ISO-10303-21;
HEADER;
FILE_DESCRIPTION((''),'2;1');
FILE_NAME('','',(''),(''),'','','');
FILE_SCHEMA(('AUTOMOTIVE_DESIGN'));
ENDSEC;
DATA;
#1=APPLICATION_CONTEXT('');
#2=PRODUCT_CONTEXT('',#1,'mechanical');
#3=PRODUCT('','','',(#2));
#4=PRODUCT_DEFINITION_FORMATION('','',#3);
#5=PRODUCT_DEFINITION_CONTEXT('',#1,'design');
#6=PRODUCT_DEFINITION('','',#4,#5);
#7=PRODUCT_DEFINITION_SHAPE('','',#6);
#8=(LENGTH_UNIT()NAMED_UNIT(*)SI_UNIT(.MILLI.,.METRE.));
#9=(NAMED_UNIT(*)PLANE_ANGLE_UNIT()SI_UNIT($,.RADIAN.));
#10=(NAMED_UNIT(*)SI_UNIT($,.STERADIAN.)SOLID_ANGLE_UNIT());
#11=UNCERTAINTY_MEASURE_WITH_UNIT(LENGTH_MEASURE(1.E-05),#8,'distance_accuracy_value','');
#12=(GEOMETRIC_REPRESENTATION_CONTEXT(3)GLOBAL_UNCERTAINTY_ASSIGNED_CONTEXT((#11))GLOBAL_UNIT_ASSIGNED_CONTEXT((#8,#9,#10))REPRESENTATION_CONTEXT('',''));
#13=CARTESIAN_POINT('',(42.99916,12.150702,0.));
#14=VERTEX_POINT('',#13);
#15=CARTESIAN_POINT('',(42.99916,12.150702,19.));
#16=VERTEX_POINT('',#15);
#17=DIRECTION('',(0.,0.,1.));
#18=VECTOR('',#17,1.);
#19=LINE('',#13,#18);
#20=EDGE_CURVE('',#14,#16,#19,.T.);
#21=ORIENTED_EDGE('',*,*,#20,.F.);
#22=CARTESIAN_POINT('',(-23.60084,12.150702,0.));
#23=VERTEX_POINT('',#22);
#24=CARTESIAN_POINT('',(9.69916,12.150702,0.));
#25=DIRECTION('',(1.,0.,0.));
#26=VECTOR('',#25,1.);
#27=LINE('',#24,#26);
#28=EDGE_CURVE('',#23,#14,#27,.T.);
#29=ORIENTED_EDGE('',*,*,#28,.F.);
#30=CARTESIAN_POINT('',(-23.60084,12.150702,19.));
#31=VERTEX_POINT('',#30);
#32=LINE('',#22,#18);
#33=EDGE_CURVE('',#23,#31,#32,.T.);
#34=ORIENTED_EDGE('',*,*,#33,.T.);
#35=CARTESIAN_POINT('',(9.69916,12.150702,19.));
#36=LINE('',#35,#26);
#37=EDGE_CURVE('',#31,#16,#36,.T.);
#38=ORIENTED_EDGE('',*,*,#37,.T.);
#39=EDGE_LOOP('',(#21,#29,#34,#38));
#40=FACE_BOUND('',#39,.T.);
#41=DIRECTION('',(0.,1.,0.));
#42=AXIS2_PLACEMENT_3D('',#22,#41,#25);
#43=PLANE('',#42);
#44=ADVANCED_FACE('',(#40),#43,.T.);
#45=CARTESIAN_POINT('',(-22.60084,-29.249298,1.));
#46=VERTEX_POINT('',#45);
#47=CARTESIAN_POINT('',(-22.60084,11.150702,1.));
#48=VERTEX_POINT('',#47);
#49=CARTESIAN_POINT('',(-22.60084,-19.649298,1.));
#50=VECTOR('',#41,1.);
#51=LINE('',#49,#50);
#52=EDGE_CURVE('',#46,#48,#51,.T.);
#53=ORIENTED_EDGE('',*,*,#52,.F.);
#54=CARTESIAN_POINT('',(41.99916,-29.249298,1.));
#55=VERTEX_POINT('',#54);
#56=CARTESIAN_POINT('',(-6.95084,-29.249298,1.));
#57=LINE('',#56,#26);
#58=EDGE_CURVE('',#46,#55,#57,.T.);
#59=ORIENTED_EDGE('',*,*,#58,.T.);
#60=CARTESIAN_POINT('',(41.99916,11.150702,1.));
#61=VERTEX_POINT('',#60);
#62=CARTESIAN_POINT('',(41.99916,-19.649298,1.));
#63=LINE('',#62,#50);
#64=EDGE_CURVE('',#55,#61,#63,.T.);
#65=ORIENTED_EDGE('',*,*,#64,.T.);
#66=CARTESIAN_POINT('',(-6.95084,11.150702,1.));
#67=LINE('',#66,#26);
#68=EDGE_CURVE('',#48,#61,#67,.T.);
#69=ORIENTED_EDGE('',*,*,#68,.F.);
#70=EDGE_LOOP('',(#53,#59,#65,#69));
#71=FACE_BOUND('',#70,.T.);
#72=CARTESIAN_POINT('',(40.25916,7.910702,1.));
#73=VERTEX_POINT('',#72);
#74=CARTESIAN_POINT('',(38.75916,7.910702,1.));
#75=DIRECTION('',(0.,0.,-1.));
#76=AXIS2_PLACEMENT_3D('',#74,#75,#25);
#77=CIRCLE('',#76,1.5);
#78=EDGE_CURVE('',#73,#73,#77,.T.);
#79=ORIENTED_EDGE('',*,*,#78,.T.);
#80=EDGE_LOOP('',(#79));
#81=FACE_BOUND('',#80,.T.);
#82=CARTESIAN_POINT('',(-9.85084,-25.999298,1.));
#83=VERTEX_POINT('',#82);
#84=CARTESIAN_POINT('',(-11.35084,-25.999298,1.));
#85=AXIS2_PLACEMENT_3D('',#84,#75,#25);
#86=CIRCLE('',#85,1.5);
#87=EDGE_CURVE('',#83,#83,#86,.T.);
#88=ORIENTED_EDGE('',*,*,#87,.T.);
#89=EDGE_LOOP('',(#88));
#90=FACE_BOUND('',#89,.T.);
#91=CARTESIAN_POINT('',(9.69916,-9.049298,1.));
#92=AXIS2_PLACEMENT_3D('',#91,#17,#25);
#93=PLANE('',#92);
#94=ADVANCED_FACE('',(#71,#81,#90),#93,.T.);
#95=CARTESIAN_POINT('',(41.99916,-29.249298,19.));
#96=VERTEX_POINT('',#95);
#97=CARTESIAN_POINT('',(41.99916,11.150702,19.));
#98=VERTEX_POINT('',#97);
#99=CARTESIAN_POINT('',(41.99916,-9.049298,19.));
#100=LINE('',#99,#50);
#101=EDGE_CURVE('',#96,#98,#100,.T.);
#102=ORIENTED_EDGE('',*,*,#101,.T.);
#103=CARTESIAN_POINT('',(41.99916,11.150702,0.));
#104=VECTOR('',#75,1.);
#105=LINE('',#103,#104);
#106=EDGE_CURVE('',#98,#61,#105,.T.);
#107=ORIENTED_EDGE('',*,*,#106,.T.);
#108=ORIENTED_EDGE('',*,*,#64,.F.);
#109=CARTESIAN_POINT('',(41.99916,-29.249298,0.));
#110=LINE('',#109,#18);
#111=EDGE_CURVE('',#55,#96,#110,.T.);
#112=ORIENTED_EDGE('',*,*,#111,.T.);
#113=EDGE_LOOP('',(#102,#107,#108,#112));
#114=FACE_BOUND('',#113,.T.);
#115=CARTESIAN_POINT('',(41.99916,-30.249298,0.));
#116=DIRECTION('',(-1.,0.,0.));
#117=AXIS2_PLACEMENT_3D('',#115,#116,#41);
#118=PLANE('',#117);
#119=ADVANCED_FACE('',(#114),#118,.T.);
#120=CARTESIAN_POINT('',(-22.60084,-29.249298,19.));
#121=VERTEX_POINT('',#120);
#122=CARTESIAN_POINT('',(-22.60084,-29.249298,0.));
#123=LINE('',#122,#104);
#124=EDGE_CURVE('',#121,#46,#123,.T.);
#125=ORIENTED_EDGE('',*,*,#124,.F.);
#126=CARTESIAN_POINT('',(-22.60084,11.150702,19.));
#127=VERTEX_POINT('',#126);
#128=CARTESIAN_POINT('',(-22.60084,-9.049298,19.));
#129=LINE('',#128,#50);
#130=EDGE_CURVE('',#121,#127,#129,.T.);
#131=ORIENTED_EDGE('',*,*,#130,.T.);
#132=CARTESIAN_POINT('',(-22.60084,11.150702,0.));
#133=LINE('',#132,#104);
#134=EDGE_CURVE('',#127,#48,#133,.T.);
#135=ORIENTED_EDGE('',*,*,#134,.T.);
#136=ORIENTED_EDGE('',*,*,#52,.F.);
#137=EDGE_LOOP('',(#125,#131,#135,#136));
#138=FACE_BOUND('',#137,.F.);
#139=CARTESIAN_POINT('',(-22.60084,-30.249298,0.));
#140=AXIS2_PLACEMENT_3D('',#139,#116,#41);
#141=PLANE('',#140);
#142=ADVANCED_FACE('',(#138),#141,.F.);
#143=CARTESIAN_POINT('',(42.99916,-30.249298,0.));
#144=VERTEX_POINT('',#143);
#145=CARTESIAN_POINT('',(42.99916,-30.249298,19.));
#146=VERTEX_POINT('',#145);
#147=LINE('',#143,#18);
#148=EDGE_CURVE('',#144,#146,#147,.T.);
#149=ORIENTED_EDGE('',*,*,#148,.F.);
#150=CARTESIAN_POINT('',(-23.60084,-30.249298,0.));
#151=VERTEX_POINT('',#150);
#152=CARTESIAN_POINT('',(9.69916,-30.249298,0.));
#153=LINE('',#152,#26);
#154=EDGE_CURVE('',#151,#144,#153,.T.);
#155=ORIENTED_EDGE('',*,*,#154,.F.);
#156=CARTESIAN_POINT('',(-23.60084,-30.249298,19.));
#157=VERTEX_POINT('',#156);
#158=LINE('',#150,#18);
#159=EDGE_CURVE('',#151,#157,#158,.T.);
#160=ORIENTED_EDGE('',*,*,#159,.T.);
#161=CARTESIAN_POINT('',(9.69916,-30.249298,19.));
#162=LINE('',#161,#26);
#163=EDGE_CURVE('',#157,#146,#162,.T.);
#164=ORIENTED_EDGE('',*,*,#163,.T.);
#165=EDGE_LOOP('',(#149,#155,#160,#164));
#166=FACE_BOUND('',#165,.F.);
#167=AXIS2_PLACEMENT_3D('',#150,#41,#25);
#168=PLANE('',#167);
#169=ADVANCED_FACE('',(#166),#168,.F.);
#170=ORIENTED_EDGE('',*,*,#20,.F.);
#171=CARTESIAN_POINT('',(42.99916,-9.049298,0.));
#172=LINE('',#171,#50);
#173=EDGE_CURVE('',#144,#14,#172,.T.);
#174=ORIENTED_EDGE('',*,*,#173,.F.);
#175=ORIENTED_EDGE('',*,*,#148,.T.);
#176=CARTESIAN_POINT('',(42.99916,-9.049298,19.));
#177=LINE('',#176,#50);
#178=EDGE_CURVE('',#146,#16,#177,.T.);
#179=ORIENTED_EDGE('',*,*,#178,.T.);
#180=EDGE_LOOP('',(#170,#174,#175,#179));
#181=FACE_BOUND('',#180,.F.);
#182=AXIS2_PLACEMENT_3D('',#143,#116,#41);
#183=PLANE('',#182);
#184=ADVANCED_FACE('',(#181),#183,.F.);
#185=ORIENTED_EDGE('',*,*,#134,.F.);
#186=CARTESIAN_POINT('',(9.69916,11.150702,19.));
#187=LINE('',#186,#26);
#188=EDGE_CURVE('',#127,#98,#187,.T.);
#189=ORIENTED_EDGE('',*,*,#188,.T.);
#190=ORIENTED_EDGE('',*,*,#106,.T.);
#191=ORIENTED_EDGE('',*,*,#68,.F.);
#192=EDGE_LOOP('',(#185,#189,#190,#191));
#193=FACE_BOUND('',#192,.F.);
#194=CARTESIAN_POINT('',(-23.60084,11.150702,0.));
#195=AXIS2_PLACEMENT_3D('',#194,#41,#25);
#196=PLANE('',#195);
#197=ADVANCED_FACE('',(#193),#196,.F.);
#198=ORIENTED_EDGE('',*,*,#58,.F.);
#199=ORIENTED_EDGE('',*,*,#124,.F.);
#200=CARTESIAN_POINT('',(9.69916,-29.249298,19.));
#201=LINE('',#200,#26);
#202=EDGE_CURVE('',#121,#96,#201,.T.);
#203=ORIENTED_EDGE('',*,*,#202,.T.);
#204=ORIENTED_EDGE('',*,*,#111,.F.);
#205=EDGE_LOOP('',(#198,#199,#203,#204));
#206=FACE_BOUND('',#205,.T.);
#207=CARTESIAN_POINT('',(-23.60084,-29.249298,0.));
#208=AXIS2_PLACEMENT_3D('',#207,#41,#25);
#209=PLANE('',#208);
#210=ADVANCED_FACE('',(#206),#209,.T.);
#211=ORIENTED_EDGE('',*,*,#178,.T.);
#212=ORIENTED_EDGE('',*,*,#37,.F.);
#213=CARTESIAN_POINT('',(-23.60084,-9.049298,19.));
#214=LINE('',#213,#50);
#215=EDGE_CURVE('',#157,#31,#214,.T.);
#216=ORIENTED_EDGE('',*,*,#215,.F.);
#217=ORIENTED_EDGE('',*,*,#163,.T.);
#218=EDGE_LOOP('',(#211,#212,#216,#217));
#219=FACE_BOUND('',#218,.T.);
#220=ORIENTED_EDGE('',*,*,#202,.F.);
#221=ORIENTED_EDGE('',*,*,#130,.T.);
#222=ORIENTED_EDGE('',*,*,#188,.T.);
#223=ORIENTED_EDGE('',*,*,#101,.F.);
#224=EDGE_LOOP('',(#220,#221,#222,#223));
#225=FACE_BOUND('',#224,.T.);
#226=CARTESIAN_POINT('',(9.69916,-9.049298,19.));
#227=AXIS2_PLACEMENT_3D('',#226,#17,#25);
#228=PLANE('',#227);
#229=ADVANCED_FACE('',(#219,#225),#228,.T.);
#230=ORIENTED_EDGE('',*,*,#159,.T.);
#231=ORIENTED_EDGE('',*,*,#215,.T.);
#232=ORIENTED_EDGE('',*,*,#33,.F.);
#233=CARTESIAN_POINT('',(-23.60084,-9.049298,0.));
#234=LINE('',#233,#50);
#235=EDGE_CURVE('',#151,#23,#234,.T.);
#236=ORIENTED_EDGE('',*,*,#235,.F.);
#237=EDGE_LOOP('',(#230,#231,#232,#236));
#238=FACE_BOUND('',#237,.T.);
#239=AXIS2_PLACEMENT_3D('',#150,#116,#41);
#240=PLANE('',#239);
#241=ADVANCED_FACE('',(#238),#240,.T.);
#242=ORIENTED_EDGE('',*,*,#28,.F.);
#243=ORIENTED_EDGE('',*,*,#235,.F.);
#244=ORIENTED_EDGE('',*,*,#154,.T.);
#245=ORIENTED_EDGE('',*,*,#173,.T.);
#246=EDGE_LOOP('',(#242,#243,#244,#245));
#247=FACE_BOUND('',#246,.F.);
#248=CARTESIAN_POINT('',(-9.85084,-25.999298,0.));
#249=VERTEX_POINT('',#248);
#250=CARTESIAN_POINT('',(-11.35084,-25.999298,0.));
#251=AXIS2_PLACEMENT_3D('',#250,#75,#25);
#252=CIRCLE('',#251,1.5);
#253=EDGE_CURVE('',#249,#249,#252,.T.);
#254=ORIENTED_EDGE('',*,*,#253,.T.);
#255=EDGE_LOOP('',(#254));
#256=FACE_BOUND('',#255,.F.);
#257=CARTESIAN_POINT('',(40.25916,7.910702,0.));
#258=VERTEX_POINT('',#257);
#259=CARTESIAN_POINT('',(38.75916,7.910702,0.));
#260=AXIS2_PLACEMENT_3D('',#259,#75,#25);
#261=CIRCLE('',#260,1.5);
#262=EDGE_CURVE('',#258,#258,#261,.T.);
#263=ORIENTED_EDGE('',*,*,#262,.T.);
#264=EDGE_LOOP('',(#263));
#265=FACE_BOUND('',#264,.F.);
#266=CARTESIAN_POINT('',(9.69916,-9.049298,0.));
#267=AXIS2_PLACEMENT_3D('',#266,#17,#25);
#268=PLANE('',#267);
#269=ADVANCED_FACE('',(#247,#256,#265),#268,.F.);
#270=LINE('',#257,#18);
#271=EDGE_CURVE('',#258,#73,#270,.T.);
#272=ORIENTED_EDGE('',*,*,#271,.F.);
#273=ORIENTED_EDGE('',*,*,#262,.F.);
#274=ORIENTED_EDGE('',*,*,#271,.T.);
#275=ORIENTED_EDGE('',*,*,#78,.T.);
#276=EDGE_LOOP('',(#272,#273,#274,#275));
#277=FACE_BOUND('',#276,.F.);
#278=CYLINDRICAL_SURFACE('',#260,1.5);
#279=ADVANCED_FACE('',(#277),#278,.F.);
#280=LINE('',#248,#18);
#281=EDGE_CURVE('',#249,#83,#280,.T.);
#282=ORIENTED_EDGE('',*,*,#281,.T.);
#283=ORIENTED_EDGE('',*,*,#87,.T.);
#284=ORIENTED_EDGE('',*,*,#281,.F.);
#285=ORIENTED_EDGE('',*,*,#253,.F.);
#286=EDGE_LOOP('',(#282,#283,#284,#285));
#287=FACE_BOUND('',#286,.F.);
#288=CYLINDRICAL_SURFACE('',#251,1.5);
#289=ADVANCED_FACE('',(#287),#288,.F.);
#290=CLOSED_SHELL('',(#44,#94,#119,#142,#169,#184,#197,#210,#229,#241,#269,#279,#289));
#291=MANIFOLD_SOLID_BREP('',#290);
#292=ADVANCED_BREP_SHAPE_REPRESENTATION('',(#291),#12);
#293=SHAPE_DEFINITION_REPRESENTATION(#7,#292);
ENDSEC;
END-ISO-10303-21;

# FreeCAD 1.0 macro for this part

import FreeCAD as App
import Part
import Sketcher

V = App.Vector


def faces_at(feature, points):
    """Names of the faces that lie closest to the given points."""
    faces = feature.Shape.Faces
    near = lambda p: min(range(len(faces)), key=lambda i: faces[i].distToShape(Part.Vertex(*p))[0])
    return sorted({f"Face{near(p) + 1}" for p in points})

doc = App.newDocument("Part")
body = doc.addObject("PartDesign::Body", "Body")

# Sketch on XY plane
sketch1 = body.newObject("Sketcher::SketchObject", "Sketch")
sketch1.AttachmentSupport = (doc.getObject("XY_Plane"), [""])
sketch1.MapMode = "FlatFace"
sketch1.addGeometry([
    Part.LineSegment(V(-23.60084, 12.150702, 0), V(-23.60084, -30.249298, 0)),
    Part.LineSegment(V(-23.60084, -30.249298, 0), V(42.99916, -30.249298, 0)),
    Part.LineSegment(V(42.99916, -30.249298, 0), V(42.99916, 12.150702, 0)),
    Part.LineSegment(V(42.99916, 12.150702, 0), V(-23.60084, 12.150702, 0)),
], False)
sketch1.addConstraint([
    Sketcher.Constraint("Coincident", 0, 2, 1, 1),
    Sketcher.Constraint("Coincident", 1, 2, 2, 1),
    Sketcher.Constraint("Coincident", 2, 2, 3, 1),
    Sketcher.Constraint("Coincident", 3, 2, 0, 1),
    Sketcher.Constraint("Vertical", 0),
    Sketcher.Constraint("Horizontal", 1),
    Sketcher.Constraint("Vertical", 2),
    Sketcher.Constraint("Horizontal", 3),
    Sketcher.Constraint("DistanceX", 1, 1, 1, 2, 66.6),
    Sketcher.Constraint("DistanceY", 0, 2, 0, 1, 42.4),
    Sketcher.Constraint("DistanceX", 0, 2, -1, 1, 23.60084),
    Sketcher.Constraint("DistanceY", 0, 2, -1, 1, 30.249298),
])
pad1 = body.newObject("PartDesign::Pad", "Pad")
pad1.Profile = sketch1
pad1.Length = 19
doc.recompute()

thickness = body.newObject("PartDesign::Thickness", "Thickness")
thickness.Base = (pad1, faces_at(pad1, [(9.699, -9.049, 19)]))
thickness.Value = 1
thickness.Reversed = True
thickness.Join = "Arc"

# Sketch on XY plane
sketch2 = body.newObject("Sketcher::SketchObject", "Sketch001")
sketch2.AttachmentSupport = (doc.getObject("XY_Plane"), [""])
sketch2.MapMode = "FlatFace"
sketch2.addGeometry(Part.Circle(V(-11.35084, -25.999298, 0), V(0, 0, 1), 1.5), False)
sketch2.addConstraint([
    Sketcher.Constraint("Diameter", 0, 3.0),
    Sketcher.Constraint("DistanceX", 0, 3, -1, 1, 11.35084),
    Sketcher.Constraint("DistanceY", 0, 3, -1, 1, 25.999298),
])
pocket1 = body.newObject("PartDesign::Pocket", "Pocket")
pocket1.Profile = sketch2
pocket1.Length = 25
pocket1.Reversed = True

# Sketch on XY plane
sketch3 = body.newObject("Sketcher::SketchObject", "Sketch002")
sketch3.AttachmentSupport = (doc.getObject("XY_Plane"), [""])
sketch3.MapMode = "FlatFace"
sketch3.addGeometry(Part.Circle(V(38.75916, 7.910702, 0), V(0, 0, 1), 1.5), False)
sketch3.addConstraint([
    Sketcher.Constraint("Diameter", 0, 3.0),
    Sketcher.Constraint("DistanceY", -1, 1, 0, 3, 7.910702),
    Sketcher.Constraint("DistanceX", -1, 1, 0, 3, 38.75916),
])
pocket2 = body.newObject("PartDesign::Pocket", "Pocket001")
pocket2.Profile = sketch3
pocket2.Length = 25
pocket2.Reversed = True

doc.recompute()
